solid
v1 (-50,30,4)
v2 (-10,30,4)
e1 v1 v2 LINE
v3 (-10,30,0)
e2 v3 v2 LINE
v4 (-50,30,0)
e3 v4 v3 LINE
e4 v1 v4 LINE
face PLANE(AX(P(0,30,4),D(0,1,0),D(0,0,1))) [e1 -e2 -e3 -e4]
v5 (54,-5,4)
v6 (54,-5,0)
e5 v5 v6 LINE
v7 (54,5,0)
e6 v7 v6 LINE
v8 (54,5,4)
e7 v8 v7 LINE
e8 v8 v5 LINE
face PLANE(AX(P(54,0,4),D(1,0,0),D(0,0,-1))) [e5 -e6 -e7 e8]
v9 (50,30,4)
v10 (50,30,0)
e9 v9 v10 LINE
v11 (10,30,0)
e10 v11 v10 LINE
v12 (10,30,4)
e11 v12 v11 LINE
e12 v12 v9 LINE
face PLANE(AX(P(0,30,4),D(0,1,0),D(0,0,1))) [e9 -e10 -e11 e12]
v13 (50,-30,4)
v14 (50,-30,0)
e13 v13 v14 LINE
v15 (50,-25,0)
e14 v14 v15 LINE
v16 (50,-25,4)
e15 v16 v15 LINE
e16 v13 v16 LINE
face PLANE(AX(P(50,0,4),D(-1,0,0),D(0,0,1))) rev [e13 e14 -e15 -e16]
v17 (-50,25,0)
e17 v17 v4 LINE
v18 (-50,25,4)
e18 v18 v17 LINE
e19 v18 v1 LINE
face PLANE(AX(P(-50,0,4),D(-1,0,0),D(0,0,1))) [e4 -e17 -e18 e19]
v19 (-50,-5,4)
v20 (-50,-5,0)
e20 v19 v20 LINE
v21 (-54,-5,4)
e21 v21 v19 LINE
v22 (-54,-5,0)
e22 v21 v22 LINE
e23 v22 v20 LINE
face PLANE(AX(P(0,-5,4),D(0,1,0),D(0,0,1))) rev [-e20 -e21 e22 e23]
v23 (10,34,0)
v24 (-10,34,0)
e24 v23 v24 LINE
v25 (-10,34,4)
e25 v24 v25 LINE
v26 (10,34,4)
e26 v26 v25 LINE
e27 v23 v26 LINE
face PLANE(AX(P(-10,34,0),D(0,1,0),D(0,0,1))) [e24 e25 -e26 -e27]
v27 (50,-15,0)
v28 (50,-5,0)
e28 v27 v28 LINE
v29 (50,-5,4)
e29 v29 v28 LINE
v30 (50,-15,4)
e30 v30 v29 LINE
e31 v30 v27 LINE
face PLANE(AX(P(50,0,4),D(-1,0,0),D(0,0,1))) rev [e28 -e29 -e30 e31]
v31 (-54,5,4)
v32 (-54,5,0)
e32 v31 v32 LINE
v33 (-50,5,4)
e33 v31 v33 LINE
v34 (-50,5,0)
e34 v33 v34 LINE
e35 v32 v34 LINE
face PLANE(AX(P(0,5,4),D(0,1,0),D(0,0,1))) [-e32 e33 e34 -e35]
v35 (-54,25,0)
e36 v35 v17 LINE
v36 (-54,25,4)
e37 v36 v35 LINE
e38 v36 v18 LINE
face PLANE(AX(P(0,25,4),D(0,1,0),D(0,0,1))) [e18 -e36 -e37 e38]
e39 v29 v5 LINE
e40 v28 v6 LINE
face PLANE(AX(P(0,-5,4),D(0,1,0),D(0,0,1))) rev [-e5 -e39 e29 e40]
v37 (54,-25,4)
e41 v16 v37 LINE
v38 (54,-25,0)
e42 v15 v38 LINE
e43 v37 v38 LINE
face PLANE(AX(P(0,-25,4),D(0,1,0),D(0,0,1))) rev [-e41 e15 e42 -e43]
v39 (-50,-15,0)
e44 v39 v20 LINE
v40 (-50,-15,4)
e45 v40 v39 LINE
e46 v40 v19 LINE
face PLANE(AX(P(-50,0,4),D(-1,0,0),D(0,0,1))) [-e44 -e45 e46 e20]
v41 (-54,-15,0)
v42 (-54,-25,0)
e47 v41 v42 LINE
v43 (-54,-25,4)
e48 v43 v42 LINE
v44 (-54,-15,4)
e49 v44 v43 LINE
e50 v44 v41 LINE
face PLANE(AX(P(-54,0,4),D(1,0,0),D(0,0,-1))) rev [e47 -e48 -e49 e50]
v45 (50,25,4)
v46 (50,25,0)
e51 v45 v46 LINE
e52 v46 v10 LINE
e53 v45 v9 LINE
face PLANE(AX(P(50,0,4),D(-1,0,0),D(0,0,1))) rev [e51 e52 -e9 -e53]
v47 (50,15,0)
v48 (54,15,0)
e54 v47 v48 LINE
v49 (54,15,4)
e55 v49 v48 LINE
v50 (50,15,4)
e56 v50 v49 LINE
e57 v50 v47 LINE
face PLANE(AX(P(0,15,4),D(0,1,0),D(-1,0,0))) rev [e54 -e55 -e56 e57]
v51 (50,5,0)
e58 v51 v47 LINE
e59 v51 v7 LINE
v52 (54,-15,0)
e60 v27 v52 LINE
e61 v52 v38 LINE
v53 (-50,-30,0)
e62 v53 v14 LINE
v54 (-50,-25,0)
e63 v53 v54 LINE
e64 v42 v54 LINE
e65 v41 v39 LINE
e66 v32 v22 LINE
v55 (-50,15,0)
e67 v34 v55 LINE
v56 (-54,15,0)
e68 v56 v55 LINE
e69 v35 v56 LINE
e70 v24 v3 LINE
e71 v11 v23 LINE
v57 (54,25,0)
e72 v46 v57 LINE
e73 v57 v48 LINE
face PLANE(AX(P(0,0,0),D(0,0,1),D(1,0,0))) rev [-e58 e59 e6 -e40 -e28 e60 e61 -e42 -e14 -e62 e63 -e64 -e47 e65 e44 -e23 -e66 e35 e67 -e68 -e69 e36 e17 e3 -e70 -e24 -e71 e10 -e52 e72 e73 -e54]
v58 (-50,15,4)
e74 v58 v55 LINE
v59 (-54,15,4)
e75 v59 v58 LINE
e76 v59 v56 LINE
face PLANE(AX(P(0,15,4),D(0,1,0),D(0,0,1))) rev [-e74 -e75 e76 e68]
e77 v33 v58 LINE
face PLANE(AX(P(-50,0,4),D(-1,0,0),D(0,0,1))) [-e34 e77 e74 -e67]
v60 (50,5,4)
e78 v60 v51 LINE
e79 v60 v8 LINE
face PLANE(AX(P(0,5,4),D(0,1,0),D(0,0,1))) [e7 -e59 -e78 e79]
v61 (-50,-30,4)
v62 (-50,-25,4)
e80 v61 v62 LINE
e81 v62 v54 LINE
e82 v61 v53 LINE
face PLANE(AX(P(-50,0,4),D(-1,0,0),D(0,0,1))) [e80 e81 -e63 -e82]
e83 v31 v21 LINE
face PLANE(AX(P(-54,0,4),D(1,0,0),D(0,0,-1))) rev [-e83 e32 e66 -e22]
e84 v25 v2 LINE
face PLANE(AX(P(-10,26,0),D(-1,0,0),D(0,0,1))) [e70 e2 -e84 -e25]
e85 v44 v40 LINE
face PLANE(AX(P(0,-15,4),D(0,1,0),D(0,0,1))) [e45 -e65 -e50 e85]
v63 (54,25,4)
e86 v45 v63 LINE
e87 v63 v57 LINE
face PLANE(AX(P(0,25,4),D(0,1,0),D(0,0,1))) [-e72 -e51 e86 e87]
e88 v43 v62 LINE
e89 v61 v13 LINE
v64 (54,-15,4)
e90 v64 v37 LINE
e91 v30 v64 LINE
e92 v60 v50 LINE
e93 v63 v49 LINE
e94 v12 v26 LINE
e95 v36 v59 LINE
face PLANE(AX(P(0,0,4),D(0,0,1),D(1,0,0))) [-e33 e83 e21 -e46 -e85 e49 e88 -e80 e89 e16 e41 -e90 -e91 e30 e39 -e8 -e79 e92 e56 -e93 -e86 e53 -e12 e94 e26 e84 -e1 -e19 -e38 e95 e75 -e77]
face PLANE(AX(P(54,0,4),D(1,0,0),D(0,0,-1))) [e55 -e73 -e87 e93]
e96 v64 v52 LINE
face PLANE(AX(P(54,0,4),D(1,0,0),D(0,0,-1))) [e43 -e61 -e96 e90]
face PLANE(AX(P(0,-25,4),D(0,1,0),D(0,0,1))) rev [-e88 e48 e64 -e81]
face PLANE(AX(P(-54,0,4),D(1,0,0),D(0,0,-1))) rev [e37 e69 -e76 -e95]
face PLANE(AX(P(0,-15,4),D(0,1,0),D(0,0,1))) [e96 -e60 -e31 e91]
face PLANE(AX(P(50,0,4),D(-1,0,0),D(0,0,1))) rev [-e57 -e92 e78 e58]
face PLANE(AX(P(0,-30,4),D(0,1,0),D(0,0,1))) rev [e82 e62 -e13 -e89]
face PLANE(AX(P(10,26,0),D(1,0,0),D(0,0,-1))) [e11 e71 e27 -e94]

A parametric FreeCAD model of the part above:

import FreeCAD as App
import Part
import Sketcher
from FreeCAD import Vector


def add_polygon(sketch, points):
    """Adds a closed chain of lines whose ends are joined by coincident constraints."""
    first, n = sketch.GeometryCount, len(points)
    for a, b in zip(points, points[1:] + points[:1]):
        sketch.addGeometry(Part.LineSegment(App.Vector(*a, 0), App.Vector(*b, 0)), False)
    for i in range(n):
        sketch.addConstraint(Sketcher.Constraint("Coincident", first + i, 2, first + (i + 1) % n, 1))

doc = App.newDocument("Part")
body = doc.addObject("PartDesign::Body", "Body")

sketch1 = body.newObject("Sketcher::SketchObject", "Sketch")
sketch1.AttachmentSupport = (doc.getObject("XY_Plane"), [""])
sketch1.MapMode = "FlatFace"
add_polygon(sketch1, [(-50, 30), (-50, 25), (-54, 25), (-54, 15), (-50, 15), (-50, 5), (-54, 5), (-54, -5), (-50, -5), (-50, -15), (-54, -15), (-54, -25), (-50, -25), (-50, -30), (50, -30), (50, -25), (54, -25), (54, -15), (50, -15), (50, -5), (54, -5), (54, 5), (50, 5), (50, 15), (54, 15), (54, 25), (50, 25), (50, 30)])
sketch1.addConstraint([
    Sketcher.Constraint("Vertical", 0),
    Sketcher.Constraint("Horizontal", 1),
    Sketcher.Constraint("Vertical", 2),
    Sketcher.Constraint("Horizontal", 3),
    Sketcher.Constraint("Vertical", 4),
    Sketcher.Constraint("Horizontal", 5),
    Sketcher.Constraint("Vertical", 6),
    Sketcher.Constraint("Horizontal", 7),
    Sketcher.Constraint("Vertical", 8),
    Sketcher.Constraint("Horizontal", 9),
    Sketcher.Constraint("Vertical", 10),
    Sketcher.Constraint("Horizontal", 11),
    Sketcher.Constraint("Vertical", 12),
    Sketcher.Constraint("Horizontal", 13),
    Sketcher.Constraint("Vertical", 14),
    Sketcher.Constraint("Horizontal", 15),
    Sketcher.Constraint("Vertical", 16),
    Sketcher.Constraint("Horizontal", 17),
    Sketcher.Constraint("Vertical", 18),
    Sketcher.Constraint("Horizontal", 19),
    Sketcher.Constraint("Vertical", 20),
    Sketcher.Constraint("Horizontal", 21),
    Sketcher.Constraint("Vertical", 22),
    Sketcher.Constraint("Horizontal", 23),
    Sketcher.Constraint("Vertical", 24),
    Sketcher.Constraint("Horizontal", 25),
    Sketcher.Constraint("Vertical", 26),
    Sketcher.Constraint("Horizontal", 27),
    Sketcher.Constraint("Symmetric", 0, 2, 14, 2, -1, 1),
    Sketcher.Constraint("Symmetric", 2, 2, 16, 2, -1, 1),
    Sketcher.Constraint("Symmetric", 4, 2, 18, 2, -1, 1),
    Sketcher.Constraint("Symmetric", 6, 2, 20, 2, -1, 1),
    Sketcher.Constraint("Symmetric", 8, 2, 22, 2, -1, 1),
    Sketcher.Constraint("Symmetric", 10, 2, 24, 2, -1, 1),
    Sketcher.Constraint("Symmetric", 12, 2, 26, 2, -1, 1),
    Sketcher.Constraint("Symmetric", 11, 2, 14, 2, -2),
    Sketcher.Constraint("Symmetric", 9, 2, 16, 2, -2),
    Sketcher.Constraint("Symmetric", 7, 2, 18, 2, -2),
    Sketcher.Constraint("Vertical", 0, 2, 3, 2),
    Sketcher.Constraint("Vertical", 2, 2, 5, 2),
    Sketcher.Constraint("Equal", 2, 4),
    Sketcher.Constraint("Equal", 4, 6),
    Sketcher.Constraint("DistanceX", 1, 2, 1, 1, 4.0),
    Sketcher.Constraint("DistanceX", 13, 1, 13, 2, 100.0),
    Sketcher.Constraint("DistanceY", 0, 2, 0, 1, 5.0),
    Sketcher.Constraint("DistanceY", 2, 2, 2, 1, 10.0),
])
pad1 = body.newObject("PartDesign::Pad", "Pad")
pad1.Profile = sketch1
pad1.Length = 4

sketch2 = body.newObject("Sketcher::SketchObject", "Sketch001")
sketch2.AttachmentSupport = (doc.getObject("XY_Plane"), [""])
sketch2.MapMode = "FlatFace"
sketch2.AttachmentOffset = App.Placement(Vector(0, 0, 4), App.Rotation())
add_polygon(sketch2, [(-10, 34), (-10, 26), (10, 26), (10, 34)])
sketch2.addConstraint([
    Sketcher.Constraint("Vertical", 0),
    Sketcher.Constraint("Horizontal", 1),
    Sketcher.Constraint("Vertical", 2),
    Sketcher.Constraint("Horizontal", 3),
    Sketcher.Constraint("DistanceX", 1, 1, 1, 2, 20.0),
    Sketcher.Constraint("DistanceY", 0, 2, 0, 1, 8.0),
    Sketcher.Constraint("DistanceX", 0, 2, -1, 1, 10.0),
    Sketcher.Constraint("DistanceY", -1, 1, 0, 2, 26.0),
])
pad2 = body.newObject("PartDesign::Pad", "Pad001")
pad2.Profile = sketch2
pad2.Length = 4
pad2.Reversed = True

doc.recompute()
